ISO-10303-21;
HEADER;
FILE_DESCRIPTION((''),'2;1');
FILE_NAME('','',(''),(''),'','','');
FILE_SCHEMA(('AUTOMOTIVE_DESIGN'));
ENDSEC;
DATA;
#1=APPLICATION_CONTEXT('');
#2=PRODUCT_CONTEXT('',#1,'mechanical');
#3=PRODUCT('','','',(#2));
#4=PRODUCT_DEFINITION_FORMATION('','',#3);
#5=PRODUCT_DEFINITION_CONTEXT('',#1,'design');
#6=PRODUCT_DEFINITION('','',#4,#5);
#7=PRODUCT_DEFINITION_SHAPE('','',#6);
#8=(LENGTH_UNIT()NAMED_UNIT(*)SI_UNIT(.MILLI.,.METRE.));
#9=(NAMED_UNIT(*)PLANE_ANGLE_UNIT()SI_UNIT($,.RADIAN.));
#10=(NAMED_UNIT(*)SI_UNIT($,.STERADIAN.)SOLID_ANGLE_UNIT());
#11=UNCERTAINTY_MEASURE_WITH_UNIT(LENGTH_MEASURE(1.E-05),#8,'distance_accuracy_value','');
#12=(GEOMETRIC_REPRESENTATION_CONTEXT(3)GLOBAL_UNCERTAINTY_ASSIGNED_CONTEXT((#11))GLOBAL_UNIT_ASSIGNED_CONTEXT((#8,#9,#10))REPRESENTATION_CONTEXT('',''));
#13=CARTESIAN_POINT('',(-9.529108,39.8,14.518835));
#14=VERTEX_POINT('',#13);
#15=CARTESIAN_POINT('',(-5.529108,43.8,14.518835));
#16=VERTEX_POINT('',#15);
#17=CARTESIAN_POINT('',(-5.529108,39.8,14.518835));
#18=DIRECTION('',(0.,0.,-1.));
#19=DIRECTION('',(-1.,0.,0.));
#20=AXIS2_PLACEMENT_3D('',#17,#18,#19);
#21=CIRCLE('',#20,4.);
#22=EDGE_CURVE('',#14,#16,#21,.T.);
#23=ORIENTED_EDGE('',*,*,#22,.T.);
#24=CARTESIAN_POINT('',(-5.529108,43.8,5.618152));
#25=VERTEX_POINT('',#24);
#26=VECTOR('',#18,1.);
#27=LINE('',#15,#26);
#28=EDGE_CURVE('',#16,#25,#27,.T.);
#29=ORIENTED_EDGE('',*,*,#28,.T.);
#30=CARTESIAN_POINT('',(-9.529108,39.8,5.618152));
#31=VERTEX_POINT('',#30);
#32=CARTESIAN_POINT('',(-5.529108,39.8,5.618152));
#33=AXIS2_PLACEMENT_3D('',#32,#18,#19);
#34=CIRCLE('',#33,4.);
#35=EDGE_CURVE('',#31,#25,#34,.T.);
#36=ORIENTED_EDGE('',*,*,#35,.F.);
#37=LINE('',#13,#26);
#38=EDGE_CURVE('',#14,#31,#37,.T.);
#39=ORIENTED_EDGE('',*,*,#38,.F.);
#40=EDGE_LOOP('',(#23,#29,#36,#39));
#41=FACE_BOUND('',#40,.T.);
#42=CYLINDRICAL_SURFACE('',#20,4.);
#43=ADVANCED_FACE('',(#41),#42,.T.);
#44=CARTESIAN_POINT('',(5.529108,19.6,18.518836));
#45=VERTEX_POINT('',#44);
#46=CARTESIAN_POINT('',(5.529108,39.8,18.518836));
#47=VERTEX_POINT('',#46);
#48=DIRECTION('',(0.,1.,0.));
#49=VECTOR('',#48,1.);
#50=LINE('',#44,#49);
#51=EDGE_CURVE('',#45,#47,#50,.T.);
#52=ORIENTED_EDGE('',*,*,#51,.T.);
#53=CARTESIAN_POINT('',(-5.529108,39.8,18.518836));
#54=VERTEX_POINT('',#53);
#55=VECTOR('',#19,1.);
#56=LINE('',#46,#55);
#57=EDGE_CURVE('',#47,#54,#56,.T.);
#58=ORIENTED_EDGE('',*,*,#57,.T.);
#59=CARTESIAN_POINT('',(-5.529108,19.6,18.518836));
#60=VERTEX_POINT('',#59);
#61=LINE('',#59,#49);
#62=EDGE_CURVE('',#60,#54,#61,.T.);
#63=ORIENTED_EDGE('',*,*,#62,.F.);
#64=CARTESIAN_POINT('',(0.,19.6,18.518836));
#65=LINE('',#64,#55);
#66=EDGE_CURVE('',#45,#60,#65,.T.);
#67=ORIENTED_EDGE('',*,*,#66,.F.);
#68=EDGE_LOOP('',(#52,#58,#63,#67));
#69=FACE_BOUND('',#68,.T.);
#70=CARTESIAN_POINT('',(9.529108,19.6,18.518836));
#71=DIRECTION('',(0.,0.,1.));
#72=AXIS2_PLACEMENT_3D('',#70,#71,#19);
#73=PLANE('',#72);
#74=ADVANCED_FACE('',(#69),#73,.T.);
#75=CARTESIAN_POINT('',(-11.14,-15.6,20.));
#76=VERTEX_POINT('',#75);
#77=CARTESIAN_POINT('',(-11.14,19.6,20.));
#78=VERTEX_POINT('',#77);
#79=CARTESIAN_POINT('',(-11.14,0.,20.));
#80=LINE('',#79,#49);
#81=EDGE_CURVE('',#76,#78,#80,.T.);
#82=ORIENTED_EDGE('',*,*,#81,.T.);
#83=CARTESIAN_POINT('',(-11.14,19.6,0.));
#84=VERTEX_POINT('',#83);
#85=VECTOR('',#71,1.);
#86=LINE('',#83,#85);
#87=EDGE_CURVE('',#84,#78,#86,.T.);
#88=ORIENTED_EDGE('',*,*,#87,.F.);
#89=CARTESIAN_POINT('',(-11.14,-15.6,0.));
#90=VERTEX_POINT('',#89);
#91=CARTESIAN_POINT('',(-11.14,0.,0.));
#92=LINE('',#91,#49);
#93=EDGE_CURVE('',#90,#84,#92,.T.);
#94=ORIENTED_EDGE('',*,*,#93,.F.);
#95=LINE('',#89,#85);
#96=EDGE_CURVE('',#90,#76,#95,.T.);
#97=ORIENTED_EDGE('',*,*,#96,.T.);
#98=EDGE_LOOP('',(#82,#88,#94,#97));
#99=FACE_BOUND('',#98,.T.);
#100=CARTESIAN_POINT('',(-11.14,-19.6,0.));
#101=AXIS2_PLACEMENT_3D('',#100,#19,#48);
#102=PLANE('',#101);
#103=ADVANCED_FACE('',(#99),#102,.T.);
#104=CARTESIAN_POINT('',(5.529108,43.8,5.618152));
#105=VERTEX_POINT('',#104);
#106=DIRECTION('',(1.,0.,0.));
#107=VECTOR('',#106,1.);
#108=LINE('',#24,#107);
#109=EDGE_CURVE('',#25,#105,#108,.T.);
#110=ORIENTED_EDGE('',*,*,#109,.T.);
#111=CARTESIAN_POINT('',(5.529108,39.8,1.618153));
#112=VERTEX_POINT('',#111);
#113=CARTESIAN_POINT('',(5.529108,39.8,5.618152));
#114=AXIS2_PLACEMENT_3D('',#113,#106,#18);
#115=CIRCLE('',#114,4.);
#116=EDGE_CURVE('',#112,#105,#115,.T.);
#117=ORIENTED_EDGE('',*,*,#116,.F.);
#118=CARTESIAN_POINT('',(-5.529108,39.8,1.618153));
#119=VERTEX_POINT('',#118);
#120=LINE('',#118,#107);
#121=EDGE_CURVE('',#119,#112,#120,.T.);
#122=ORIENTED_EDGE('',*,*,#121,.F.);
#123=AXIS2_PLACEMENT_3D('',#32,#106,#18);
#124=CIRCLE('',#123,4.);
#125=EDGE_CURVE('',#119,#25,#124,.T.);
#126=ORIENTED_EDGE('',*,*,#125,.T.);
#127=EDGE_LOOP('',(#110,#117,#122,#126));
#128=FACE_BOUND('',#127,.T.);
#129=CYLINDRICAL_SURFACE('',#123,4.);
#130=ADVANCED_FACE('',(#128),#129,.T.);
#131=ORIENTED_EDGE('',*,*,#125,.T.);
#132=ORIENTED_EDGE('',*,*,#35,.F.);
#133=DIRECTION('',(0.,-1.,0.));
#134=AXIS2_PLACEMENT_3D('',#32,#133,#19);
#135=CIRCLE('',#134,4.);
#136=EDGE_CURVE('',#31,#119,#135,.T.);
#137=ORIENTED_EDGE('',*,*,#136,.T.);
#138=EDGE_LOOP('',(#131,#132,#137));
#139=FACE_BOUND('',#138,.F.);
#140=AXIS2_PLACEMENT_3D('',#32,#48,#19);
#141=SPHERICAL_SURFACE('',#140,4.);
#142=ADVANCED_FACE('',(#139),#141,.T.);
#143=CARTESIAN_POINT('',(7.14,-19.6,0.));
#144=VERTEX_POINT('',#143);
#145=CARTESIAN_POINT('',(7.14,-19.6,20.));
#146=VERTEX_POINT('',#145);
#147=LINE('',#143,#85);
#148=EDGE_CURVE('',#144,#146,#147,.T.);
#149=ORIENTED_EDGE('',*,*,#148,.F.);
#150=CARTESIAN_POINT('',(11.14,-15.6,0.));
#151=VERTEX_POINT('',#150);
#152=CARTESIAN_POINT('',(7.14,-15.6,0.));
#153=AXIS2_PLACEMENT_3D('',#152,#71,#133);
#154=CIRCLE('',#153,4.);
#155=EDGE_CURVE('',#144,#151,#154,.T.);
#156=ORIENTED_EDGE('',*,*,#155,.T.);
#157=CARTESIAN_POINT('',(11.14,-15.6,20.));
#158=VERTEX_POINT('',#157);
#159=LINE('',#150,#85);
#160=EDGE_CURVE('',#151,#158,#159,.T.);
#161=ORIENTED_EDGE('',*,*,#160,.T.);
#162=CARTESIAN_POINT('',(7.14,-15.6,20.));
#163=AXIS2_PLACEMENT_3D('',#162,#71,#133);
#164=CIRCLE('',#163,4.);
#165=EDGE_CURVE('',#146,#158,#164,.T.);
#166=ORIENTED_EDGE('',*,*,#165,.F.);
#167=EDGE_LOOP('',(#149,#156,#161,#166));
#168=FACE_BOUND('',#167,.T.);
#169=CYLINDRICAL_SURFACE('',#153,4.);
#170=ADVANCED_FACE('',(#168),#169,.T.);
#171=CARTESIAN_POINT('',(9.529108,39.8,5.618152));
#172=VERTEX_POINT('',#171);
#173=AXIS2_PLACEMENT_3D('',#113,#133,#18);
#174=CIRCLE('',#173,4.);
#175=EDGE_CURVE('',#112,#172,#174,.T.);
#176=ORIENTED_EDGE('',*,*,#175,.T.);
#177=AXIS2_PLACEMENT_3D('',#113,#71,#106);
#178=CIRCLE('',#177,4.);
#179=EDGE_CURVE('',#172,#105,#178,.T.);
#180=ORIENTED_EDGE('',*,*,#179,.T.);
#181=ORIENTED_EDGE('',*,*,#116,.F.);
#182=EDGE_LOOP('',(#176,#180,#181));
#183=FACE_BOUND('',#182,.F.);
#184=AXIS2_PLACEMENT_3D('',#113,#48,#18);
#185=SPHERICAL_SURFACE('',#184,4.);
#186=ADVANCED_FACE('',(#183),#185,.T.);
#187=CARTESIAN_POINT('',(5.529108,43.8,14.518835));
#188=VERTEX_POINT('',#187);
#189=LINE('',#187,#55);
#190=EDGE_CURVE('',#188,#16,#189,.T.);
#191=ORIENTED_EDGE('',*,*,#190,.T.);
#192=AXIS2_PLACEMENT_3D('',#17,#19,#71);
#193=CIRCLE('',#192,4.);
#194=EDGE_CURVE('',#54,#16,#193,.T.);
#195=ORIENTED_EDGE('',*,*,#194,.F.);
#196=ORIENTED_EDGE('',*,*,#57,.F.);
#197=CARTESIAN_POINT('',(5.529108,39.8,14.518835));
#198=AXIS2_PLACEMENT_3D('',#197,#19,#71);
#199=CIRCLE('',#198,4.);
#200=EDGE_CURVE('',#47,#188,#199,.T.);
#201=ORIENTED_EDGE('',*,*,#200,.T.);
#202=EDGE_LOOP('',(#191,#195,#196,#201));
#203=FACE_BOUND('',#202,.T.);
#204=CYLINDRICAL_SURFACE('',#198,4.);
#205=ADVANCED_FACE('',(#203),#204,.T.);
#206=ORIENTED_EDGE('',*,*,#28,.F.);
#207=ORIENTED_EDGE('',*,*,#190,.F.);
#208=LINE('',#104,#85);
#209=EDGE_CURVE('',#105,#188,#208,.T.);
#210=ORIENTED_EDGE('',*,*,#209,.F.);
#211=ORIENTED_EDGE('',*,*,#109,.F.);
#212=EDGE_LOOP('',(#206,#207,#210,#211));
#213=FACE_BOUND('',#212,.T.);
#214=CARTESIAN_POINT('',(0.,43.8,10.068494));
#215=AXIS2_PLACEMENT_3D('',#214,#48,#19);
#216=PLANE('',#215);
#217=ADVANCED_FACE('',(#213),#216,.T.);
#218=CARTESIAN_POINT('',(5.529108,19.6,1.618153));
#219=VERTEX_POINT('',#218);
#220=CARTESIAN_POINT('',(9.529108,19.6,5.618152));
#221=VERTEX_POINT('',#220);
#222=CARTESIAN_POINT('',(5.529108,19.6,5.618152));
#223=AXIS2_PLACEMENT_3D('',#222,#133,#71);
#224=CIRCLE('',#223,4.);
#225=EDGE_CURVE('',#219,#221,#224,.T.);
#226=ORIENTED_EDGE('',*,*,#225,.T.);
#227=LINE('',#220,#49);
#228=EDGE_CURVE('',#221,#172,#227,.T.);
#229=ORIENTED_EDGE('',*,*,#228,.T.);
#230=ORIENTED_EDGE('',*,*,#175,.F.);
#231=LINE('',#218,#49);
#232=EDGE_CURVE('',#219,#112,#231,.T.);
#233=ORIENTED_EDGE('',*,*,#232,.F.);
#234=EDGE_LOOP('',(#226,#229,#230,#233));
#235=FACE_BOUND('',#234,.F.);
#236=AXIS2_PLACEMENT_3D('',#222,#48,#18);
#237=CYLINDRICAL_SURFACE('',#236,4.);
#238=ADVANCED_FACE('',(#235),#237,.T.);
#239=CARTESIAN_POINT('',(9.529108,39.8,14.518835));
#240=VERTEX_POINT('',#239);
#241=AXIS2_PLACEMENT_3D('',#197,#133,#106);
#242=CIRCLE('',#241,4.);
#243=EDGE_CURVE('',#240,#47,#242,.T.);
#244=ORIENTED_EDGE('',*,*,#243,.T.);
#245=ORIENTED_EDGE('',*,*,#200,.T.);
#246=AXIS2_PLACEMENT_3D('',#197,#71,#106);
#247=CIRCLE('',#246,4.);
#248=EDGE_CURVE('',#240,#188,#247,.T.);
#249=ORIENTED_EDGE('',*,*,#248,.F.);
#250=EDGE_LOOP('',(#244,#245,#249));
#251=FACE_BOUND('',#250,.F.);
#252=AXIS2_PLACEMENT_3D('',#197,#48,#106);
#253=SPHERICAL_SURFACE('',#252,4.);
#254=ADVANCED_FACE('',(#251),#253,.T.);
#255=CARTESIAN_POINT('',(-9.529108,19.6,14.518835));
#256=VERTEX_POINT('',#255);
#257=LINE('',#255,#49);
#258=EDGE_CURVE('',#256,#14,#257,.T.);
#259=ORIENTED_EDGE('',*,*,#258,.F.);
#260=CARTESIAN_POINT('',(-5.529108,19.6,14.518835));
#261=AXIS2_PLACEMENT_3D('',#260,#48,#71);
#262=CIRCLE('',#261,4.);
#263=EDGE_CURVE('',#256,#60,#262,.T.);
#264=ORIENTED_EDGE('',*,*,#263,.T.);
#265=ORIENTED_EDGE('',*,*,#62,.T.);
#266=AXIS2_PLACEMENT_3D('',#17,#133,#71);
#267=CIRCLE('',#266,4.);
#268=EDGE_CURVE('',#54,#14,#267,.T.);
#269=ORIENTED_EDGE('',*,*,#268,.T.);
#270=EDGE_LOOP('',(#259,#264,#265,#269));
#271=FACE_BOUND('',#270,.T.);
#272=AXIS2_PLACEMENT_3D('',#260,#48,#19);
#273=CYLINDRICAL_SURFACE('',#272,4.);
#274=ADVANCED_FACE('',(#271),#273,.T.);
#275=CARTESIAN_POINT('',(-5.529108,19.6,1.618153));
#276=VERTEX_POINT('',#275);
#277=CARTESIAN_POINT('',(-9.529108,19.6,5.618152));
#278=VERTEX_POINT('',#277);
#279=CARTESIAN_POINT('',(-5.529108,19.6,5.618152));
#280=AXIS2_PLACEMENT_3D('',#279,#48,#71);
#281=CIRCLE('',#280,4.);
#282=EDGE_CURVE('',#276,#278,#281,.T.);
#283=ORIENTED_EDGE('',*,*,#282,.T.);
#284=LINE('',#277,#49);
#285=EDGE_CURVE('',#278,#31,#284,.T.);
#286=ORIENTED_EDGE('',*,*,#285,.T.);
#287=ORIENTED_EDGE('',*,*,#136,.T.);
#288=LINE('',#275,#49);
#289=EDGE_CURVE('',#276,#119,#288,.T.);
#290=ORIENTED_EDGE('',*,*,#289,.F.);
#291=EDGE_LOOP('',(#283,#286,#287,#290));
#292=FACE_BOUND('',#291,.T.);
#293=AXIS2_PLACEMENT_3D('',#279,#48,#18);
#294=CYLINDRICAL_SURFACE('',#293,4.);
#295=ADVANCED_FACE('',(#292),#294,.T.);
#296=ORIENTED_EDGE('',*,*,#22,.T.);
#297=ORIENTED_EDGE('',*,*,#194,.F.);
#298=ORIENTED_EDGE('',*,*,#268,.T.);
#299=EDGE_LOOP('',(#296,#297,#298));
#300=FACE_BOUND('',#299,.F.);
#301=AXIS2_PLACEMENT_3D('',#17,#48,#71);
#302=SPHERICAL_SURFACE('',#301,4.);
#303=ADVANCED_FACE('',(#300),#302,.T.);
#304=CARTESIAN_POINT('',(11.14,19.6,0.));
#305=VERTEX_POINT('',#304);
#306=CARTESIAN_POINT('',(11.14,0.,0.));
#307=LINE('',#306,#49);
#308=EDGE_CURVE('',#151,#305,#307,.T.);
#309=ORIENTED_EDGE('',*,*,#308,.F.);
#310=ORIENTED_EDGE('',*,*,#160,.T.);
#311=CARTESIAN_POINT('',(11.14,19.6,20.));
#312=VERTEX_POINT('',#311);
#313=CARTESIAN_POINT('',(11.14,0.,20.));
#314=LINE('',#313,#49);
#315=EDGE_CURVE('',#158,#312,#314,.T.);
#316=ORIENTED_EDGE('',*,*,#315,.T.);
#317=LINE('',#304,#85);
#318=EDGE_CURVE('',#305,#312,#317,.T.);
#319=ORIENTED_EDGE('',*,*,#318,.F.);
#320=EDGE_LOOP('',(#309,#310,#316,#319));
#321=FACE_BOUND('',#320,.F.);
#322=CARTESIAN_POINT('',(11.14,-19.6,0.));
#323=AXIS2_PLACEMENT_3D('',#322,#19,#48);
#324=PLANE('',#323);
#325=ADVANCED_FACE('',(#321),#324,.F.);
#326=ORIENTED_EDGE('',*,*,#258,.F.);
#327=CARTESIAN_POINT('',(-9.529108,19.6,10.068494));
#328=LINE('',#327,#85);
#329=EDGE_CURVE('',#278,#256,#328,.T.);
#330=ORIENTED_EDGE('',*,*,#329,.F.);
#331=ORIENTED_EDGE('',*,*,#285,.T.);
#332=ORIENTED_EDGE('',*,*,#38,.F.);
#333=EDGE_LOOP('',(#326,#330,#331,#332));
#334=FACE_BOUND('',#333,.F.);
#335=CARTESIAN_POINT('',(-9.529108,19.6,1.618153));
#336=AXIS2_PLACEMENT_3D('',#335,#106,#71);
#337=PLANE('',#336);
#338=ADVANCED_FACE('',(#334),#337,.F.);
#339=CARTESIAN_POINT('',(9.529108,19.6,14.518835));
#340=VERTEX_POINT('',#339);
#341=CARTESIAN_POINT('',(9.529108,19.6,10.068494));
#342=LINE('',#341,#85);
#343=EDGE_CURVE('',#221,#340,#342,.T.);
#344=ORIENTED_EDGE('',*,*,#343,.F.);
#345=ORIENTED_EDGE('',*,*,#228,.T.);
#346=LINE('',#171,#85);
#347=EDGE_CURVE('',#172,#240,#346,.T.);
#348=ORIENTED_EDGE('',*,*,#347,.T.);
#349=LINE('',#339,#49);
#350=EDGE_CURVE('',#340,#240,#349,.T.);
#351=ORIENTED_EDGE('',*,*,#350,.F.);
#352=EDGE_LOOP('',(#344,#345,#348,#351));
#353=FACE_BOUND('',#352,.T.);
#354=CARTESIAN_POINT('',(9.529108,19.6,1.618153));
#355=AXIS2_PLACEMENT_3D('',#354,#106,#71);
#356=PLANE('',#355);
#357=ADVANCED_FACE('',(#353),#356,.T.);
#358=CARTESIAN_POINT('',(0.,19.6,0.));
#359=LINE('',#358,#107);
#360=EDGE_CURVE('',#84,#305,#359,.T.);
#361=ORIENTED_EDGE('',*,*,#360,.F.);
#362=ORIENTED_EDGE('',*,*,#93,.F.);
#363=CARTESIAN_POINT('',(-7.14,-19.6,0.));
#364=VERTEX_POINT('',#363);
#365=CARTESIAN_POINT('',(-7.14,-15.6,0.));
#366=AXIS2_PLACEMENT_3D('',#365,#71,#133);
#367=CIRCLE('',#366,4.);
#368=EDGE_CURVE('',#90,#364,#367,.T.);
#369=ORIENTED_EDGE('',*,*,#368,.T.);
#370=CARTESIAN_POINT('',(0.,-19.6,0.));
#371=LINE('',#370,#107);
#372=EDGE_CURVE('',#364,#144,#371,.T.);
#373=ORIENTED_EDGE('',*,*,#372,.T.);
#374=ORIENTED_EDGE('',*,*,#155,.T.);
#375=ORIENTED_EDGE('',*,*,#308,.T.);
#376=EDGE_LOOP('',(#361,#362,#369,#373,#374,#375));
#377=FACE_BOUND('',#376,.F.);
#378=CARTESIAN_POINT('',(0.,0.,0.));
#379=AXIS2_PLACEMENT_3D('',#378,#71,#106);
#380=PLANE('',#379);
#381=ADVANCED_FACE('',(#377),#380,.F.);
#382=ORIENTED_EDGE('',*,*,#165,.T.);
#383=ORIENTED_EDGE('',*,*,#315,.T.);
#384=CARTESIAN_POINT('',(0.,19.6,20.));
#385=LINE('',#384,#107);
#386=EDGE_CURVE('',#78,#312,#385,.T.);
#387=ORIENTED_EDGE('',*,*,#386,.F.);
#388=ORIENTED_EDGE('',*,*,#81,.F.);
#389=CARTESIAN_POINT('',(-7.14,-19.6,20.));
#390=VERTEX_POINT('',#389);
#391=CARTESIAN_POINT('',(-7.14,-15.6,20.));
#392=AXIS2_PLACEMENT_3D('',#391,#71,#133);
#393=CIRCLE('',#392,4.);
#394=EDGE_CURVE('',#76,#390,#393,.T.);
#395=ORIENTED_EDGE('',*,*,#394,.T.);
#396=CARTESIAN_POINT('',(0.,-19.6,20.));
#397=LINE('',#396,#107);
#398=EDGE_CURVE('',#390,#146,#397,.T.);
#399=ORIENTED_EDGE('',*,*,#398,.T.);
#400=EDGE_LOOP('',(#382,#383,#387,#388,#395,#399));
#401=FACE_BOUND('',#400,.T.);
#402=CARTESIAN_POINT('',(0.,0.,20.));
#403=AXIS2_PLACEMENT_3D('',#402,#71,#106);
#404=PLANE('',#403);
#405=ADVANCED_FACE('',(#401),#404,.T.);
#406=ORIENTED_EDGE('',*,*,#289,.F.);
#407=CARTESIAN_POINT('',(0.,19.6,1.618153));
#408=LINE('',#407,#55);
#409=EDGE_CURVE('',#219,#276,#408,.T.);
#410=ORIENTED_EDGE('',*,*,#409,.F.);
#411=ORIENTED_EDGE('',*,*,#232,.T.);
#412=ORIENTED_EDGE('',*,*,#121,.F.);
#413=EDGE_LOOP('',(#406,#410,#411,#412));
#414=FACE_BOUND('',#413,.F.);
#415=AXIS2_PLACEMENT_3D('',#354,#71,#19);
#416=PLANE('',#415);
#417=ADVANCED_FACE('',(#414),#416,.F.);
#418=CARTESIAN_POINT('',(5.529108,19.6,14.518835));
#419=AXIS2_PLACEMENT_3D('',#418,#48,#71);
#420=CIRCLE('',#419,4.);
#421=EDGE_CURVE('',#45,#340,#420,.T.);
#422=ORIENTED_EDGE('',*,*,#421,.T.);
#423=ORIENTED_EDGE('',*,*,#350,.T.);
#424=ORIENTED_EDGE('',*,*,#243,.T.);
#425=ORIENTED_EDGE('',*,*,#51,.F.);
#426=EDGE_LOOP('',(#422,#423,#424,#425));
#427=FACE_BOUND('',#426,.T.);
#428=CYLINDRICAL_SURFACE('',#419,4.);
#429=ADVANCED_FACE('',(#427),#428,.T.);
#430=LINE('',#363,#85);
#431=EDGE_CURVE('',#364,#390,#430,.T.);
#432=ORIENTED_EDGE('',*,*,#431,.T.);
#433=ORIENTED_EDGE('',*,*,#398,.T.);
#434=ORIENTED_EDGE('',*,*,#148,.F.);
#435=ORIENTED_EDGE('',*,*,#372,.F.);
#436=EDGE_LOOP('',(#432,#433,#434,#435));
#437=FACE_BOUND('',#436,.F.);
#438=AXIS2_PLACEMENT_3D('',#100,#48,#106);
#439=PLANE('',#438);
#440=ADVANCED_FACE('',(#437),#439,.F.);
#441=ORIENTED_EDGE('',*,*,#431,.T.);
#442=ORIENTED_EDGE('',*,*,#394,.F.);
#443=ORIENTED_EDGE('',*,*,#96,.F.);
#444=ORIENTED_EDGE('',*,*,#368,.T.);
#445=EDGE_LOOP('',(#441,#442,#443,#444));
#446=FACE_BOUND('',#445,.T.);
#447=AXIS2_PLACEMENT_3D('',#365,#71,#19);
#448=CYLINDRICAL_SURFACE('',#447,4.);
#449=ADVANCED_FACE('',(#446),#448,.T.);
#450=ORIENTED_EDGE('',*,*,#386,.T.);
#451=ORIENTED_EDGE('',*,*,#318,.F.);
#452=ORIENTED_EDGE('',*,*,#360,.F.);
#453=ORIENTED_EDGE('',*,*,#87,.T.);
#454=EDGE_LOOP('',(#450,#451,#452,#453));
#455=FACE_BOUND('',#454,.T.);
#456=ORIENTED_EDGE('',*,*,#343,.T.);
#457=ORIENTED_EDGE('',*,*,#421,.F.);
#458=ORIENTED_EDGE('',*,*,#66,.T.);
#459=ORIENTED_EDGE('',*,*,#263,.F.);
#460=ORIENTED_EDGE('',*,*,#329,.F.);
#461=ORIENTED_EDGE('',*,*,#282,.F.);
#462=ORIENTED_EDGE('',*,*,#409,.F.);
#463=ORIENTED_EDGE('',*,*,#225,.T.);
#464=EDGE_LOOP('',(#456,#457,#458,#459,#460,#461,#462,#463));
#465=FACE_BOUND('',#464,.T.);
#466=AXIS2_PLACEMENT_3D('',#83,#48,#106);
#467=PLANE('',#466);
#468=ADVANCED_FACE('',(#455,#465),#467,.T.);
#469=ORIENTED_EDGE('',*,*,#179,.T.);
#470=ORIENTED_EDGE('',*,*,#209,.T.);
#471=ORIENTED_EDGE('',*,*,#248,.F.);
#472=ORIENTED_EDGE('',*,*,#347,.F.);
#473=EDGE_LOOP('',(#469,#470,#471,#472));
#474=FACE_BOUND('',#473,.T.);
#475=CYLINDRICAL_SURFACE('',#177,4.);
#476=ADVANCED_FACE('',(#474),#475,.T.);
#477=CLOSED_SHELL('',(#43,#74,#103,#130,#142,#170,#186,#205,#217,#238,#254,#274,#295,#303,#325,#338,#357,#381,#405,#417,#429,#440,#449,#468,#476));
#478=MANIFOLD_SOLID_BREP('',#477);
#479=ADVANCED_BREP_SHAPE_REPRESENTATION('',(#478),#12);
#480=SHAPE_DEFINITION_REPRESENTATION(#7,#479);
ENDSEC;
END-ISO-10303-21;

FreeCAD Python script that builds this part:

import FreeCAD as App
import Part
import Sketcher
Q = App.Units.Quantity


def edges_at(feature, points):
    """Names of the edges that pass closest to the given points."""
    edges = feature.Shape.Edges
    near = lambda p: min(range(len(edges)), key=lambda i: edges[i].distToShape(Part.Vertex(*p))[0])
    return sorted({f"Edge{near(p) + 1}" for p in points})

doc = App.newDocument("Part")
body = doc.addObject("PartDesign::Body", "Body")

sketch1 = doc.addObject("Sketcher::SketchObject", "Sketch")
body.addObject(sketch1)
sketch1.AttachmentSupport = (doc.XY_Plane, [""])
sketch1.MapMode = "FlatFace"
sketch1.addGeometry([
    Part.LineSegment(App.Vector(-11, 20, 0), App.Vector(-11, -20, 0)),
    Part.LineSegment(App.Vector(-11, -20, 0), App.Vector(11, -20, 0)),
    Part.LineSegment(App.Vector(11, -20, 0), App.Vector(11, 20, 0)),
    Part.LineSegment(App.Vector(11, 20, 0), App.Vector(-11, 20, 0)),
], False)
sketch1.addConstraint([
    Sketcher.Constraint("Coincident", 0, 2, 1, 1),
    Sketcher.Constraint("Coincident", 1, 2, 2, 1),
    Sketcher.Constraint("Coincident", 2, 2, 3, 1),
    Sketcher.Constraint("Coincident", 3, 2, 0, 1),
    Sketcher.Constraint("Vertical", 0),
    Sketcher.Constraint("Horizontal", 1),
    Sketcher.Constraint("Vertical", 2),
    Sketcher.Constraint("Horizontal", 3),
    Sketcher.Constraint("Symmetric", 0, 2, 2, 2, -1, 1),
    Sketcher.Constraint("DistanceY", 0, 2, 0, 1, Q("39.2 mm")),
    Sketcher.Constraint("DistanceX", 1, 1, 1, 2, Q("22.28 mm")),
])
pad1 = doc.addObject("PartDesign::Pad", "Pad")
body.addObject(pad1)
pad1.Profile = sketch1
pad1.Length = 20
doc.recompute()

fillet = doc.addObject("PartDesign::Fillet", "Fillet")
body.addObject(fillet)
fillet.Base = (pad1, edges_at(pad1, [(-11.14, -19.6, 10), (11.14, -19.6, 10)]))
fillet.Radius = 4

sketch2 = doc.addObject("Sketcher::SketchObject", "Sketch001")
body.addObject(sketch2)
sketch2.AttachmentSupport = (doc.XZ_Plane, [""])
sketch2.MapMode = "FlatFace"
sketch2.AttachmentOffset = App.Placement(App.Vector(0, 0, -19.6), App.Rotation())
sketch2.addGeometry([
    Part.LineSegment(App.Vector(10, 19, 0), App.Vector(10, 2, 0)),
    Part.LineSegment(App.Vector(10, 2, 0), App.Vector(-10, 2, 0)),
    Part.LineSegment(App.Vector(-10, 2, 0), App.Vector(-10, 19, 0)),
    Part.LineSegment(App.Vector(-10, 19, 0), App.Vector(10, 19, 0)),
], False)
sketch2.addConstraint([
    Sketcher.Constraint("Coincident", 0, 2, 1, 1),
    Sketcher.Constraint("Coincident", 1, 2, 2, 1),
    Sketcher.Constraint("Coincident", 2, 2, 3, 1),
    Sketcher.Constraint("Coincident", 3, 2, 0, 1),
    Sketcher.Constraint("Vertical", 0),
    Sketcher.Constraint("Horizontal", 1),
    Sketcher.Constraint("Vertical", 2),
    Sketcher.Constraint("Horizontal", 3),
    Sketcher.Constraint("DistanceX", 1, 2, 1, 1, Q("19.058216 mm")),
    Sketcher.Constraint("DistanceY", 0, 2, 0, 1, Q("16.900683 mm")),
    Sketcher.Constraint("DistanceX", -1, 1, 0, 2, Q("9.529108 mm")),
    Sketcher.Constraint("DistanceY", -1, 1, 0, 2, Q("1.618153 mm")),
])
pad2 = doc.addObject("PartDesign::Pad", "Pad001")
body.addObject(pad2)
pad2.Profile = sketch2
pad2.Length = 24.2
pad2.Reversed = True
doc.recompute()

fillet2 = doc.addObject("PartDesign::Fillet", "Fillet001")
body.addObject(fillet2)
fillet2.Base = (pad2, edges_at(pad2, [
    (-9.529, 31.7, 1.618),
    (9.529, 31.7, 1.618),
    (-9.529, 31.7, 18.519),
    (9.529, 31.7, 18.519),
]))
fillet2.Radius = 4
doc.recompute()

fillet3 = doc.addObject("PartDesign::Fillet", "Fillet002")
body.addObject(fillet3)
fillet3.Base = (fillet2, edges_at(fillet2, [
    (9.529, 43.8, 10.068),
    (0, 43.8, 18.519),
    (-9.529, 43.8, 10.068),
    (0, 43.8, 1.618),
]))
fillet3.Radius = 4

doc.recompute()
